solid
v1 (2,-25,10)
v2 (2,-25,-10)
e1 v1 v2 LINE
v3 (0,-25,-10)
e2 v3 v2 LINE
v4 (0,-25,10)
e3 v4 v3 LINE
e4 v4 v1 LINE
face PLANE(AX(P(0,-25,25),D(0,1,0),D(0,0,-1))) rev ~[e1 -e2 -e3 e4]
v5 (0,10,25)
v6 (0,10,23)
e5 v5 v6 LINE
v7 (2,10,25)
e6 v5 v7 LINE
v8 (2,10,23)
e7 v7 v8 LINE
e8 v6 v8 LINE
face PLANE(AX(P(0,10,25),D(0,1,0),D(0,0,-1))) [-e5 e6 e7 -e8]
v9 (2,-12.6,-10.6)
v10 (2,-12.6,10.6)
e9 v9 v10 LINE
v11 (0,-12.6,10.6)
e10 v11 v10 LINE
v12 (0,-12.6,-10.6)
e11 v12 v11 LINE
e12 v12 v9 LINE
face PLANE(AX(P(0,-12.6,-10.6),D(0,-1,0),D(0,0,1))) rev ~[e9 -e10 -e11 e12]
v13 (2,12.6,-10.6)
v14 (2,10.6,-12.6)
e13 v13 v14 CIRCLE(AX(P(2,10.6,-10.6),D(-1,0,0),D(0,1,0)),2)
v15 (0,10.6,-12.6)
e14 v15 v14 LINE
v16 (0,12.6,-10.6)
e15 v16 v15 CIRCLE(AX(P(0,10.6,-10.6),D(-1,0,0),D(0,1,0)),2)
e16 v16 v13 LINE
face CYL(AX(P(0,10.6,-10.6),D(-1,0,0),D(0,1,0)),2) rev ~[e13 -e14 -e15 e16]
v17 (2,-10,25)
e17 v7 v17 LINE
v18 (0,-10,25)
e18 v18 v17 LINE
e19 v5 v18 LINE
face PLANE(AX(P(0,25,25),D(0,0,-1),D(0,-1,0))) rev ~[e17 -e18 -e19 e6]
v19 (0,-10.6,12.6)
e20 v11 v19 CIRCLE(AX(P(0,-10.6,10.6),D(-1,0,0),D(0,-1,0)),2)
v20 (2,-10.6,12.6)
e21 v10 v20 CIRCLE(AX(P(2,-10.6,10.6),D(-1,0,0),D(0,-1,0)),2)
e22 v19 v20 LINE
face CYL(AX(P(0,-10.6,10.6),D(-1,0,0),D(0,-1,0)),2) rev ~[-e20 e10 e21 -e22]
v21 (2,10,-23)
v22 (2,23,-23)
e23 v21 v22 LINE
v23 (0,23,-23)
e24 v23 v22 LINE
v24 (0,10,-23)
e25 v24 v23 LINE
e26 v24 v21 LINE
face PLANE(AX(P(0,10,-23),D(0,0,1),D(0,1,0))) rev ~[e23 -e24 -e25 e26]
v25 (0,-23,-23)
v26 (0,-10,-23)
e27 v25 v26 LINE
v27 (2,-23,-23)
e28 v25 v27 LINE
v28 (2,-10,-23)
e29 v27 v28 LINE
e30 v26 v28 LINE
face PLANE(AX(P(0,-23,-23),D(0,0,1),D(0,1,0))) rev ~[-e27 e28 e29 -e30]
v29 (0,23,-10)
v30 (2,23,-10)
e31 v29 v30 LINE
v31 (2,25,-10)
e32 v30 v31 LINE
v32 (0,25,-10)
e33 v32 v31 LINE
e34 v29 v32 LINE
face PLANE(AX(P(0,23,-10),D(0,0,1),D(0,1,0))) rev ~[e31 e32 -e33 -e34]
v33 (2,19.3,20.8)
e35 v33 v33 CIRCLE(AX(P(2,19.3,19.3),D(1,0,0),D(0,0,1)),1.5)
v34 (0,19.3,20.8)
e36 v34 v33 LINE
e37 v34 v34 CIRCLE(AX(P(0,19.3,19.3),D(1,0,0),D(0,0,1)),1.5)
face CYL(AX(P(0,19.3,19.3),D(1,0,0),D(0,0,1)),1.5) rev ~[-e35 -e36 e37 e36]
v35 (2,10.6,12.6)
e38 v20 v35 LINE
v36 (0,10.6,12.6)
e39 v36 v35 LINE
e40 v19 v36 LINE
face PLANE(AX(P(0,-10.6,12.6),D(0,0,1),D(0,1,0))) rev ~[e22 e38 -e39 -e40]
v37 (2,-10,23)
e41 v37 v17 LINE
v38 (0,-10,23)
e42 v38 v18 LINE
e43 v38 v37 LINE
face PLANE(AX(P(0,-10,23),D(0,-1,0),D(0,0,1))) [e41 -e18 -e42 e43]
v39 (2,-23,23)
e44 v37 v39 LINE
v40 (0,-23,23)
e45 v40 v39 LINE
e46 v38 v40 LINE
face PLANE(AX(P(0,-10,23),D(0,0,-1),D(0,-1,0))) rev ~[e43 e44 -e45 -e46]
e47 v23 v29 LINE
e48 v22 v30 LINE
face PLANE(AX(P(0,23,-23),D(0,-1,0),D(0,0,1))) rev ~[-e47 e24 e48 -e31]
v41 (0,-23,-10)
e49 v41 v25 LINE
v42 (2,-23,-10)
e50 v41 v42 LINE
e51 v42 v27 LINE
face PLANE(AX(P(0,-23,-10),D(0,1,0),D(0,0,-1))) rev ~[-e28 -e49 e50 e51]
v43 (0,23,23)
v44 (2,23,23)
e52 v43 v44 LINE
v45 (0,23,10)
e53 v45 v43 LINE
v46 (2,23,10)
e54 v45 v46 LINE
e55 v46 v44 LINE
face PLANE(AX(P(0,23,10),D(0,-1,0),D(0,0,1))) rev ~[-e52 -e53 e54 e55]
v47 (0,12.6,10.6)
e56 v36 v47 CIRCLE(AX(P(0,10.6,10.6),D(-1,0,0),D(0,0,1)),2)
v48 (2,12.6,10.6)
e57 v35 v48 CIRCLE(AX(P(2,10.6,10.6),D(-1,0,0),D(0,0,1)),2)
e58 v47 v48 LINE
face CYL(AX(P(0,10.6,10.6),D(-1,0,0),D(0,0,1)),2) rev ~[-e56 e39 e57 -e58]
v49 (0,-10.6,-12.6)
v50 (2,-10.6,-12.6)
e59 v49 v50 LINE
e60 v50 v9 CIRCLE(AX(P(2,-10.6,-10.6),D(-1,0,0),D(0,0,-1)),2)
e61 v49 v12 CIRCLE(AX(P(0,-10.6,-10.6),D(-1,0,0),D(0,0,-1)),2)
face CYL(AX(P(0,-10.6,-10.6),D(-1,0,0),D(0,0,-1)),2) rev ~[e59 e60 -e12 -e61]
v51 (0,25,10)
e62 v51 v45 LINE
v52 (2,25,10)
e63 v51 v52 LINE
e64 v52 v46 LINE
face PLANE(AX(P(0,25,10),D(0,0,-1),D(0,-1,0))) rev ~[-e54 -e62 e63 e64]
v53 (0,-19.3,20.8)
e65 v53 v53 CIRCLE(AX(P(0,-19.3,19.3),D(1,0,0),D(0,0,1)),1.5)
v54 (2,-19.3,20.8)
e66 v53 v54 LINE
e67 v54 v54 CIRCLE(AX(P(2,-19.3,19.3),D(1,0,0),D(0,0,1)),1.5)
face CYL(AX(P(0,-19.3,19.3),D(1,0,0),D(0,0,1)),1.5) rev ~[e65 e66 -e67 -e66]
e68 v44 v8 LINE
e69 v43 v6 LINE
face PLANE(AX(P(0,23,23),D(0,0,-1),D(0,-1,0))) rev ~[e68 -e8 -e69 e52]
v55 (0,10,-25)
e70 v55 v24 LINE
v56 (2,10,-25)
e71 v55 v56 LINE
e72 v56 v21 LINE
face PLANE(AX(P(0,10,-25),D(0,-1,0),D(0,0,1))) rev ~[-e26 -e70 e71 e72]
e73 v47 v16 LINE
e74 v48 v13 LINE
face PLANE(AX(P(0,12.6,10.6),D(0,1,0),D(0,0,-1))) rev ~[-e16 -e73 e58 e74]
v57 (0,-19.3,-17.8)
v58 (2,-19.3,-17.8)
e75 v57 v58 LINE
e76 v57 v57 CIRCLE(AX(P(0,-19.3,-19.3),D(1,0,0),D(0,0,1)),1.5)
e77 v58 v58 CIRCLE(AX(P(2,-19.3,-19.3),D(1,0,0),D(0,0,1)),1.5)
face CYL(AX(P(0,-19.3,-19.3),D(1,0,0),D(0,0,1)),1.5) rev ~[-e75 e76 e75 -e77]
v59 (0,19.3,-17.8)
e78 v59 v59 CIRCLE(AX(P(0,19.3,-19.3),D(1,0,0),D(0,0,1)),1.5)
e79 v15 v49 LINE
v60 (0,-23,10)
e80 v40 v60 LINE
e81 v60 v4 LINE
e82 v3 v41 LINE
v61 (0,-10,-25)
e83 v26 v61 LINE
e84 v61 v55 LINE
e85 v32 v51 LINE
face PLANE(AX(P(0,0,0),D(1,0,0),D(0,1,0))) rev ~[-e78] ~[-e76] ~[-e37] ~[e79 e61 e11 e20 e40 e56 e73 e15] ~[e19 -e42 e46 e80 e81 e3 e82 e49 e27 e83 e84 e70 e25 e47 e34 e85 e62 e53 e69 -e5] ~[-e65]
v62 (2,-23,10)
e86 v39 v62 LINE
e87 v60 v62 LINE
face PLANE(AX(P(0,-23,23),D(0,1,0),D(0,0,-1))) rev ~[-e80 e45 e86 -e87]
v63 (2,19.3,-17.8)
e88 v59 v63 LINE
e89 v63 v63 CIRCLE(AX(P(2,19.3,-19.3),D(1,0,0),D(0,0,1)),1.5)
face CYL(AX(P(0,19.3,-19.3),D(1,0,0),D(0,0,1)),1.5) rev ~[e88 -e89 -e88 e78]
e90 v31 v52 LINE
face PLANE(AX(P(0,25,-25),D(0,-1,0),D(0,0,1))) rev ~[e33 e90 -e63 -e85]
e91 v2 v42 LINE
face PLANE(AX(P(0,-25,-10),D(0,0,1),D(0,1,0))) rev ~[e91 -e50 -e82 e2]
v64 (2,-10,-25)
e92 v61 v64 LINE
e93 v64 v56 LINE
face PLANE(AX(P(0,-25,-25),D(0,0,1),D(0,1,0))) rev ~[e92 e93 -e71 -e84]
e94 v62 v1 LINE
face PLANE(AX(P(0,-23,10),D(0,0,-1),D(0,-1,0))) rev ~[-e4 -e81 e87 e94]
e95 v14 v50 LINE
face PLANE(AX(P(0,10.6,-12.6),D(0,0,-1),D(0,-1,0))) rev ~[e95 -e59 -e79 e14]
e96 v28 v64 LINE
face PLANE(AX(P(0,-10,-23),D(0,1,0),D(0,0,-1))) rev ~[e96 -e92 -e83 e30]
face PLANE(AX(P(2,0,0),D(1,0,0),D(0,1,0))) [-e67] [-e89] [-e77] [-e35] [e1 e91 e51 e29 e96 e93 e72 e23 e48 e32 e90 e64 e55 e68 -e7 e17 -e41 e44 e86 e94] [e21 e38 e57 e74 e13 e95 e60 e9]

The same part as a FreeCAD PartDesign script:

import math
import FreeCAD as App
import Part
import Sketcher
Q = App.Units.Quantity

doc = App.newDocument("Part")
params = doc.addObject("Spreadsheet::Sheet", "Params")
for row, (alias, value) in enumerate([
    ("sketch1_width", "50 mm"),
    ("pad1_length", "2 mm"),
    ("sketch2_diameter", "3 mm"),
    ("hole_diameter", "3 mm"),
    ("sketch3_diameter", "3 mm"),
    ("hole2_diameter", "3 mm"),
    ("sketch4_diameter", "3 mm"),
    ("hole3_diameter", "3 mm"),
    ("sketch5_diameter", "3 mm"),
    ("hole4_diameter", "3 mm"),
    ("sketch6_width", "2 mm"),
    ("pocket1_length", "2 mm"),
    ("sketch7_radius", "2 mm"),
    ("sketch7_width", "21.2 mm"),
    ("pocket2_length", "2 mm"),
], start=1):
    params.set(f"A{row}", alias)
    params.set(f"B{row}", "=" + value)
    params.setAlias(f"B{row}", alias)

body = doc.addObject("PartDesign::Body", "Body")

# Sketch on YZ plane
sketch1 = body.newObject("Sketcher::SketchObject", "Sketch")
sketch1.AttachmentSupport = (doc.getObject("YZ_Plane"), [""])
sketch1.MapMode = "FlatFace"
sketch1.addGeometry(Part.LineSegment(App.Vector(-25, 25, 0), App.Vector(-25, -25, 0)), False)
sketch1.addGeometry(Part.LineSegment(App.Vector(-25, -25, 0), App.Vector(25, -25, 0)), False)
sketch1.addGeometry(Part.LineSegment(App.Vector(25, -25, 0), App.Vector(25, 25, 0)), False)
sketch1.addGeometry(Part.LineSegment(App.Vector(25, 25, 0), App.Vector(-25, 25, 0)), False)
sketch1.addConstraint(Sketcher.Constraint("Coincident", 0, 2, 1, 1))
sketch1.addConstraint(Sketcher.Constraint("Coincident", 1, 2, 2, 1))
sketch1.addConstraint(Sketcher.Constraint("Coincident", 2, 2, 3, 1))
sketch1.addConstraint(Sketcher.Constraint("Coincident", 3, 2, 0, 1))
sketch1.addConstraint(Sketcher.Constraint("Vertical", 0))
sketch1.addConstraint(Sketcher.Constraint("Horizontal", 1))
sketch1.addConstraint(Sketcher.Constraint("Vertical", 2))
sketch1.addConstraint(Sketcher.Constraint("Horizontal", 3))
sketch1.addConstraint(Sketcher.Constraint("Symmetric", 0, 2, 2, 2, -1, 1))
sketch1.addConstraint(Sketcher.Constraint("Equal", 3, 0))
sketch1.addConstraint(Sketcher.Constraint("DistanceX", 1, 1, 1, 2, Q("50 mm")))
sketch1.setExpression("Constraints[10]", "Params.sketch1_width")
pad1 = body.newObject("PartDesign::Pad", "Pad")
pad1.Profile = sketch1
pad1.setExpression("Length", "Params.pad1_length")

# Sketch on YZ plane
sketch2 = body.newObject("Sketcher::SketchObject", "Sketch001")
sketch2.AttachmentSupport = (doc.getObject("YZ_Plane"), [""])
sketch2.MapMode = "FlatFace"
sketch2.addGeometry(Part.Circle(App.Vector(19.3, -19.3, 0), App.Vector(0, 0, 1), 1.5), False)
sketch2.addConstraint(Sketcher.Constraint("Diameter", 0, Q("3 mm")))
sketch2.addConstraint(Sketcher.Constraint("DistanceX", -1, 1, 0, 3, Q("19.3 mm")))
sketch2.addConstraint(Sketcher.Constraint("DistanceY", 0, 3, -1, 1, Q("19.3 mm")))
sketch2.setExpression("Constraints[0]", "Params.sketch2_diameter")
doc.recompute()
hole = body.newObject("PartDesign::Hole", "Hole")
hole.Profile = sketch2
hole.ThreadType = "None"
hole.setExpression("Diameter", "Params.hole_diameter")
hole.DepthType = "ThroughAll"
hole.Reversed = True

# Sketch on YZ plane
sketch3 = body.newObject("Sketcher::SketchObject", "Sketch002")
sketch3.AttachmentSupport = (doc.getObject("YZ_Plane"), [""])
sketch3.MapMode = "FlatFace"
sketch3.addGeometry(Part.Circle(App.Vector(19.3, 19.3, 0), App.Vector(0, 0, 1), 1.5), False)
sketch3.addConstraint(Sketcher.Constraint("Diameter", 0, Q("3 mm")))
sketch3.addConstraint(Sketcher.Constraint("DistanceX", -1, 1, 0, 3, Q("19.3 mm")))
sketch3.addConstraint(Sketcher.Constraint("DistanceY", -1, 1, 0, 3, Q("19.3 mm")))
sketch3.setExpression("Constraints[0]", "Params.sketch3_diameter")
doc.recompute()
hole2 = body.newObject("PartDesign::Hole", "Hole001")
hole2.Profile = sketch3
hole2.ThreadType = "None"
hole2.setExpression("Diameter", "Params.hole2_diameter")
hole2.DepthType = "ThroughAll"
hole2.Reversed = True

# Sketch on YZ plane
sketch4 = body.newObject("Sketcher::SketchObject", "Sketch003")
sketch4.AttachmentSupport = (doc.getObject("YZ_Plane"), [""])
sketch4.MapMode = "FlatFace"
sketch4.addGeometry(Part.Circle(App.Vector(-19.3, -19.3, 0), App.Vector(0, 0, 1), 1.5), False)
sketch4.addConstraint(Sketcher.Constraint("Diameter", 0, Q("3 mm")))
sketch4.addConstraint(Sketcher.Constraint("DistanceX", 0, 3, -1, 1, Q("19.3 mm")))
sketch4.addConstraint(Sketcher.Constraint("DistanceY", 0, 3, -1, 1, Q("19.3 mm")))
sketch4.setExpression("Constraints[0]", "Params.sketch4_diameter")
doc.recompute()
hole3 = body.newObject("PartDesign::Hole", "Hole002")
hole3.Profile = sketch4
hole3.ThreadType = "None"
hole3.setExpression("Diameter", "Params.hole3_diameter")
hole3.DepthType = "ThroughAll"
hole3.Reversed = True

# Sketch on YZ plane
sketch5 = body.newObject("Sketcher::SketchObject", "Sketch004")
sketch5.AttachmentSupport = (doc.getObject("YZ_Plane"), [""])
sketch5.MapMode = "FlatFace"
sketch5.addGeometry(Part.Circle(App.Vector(-19.3, 19.3, 0), App.Vector(0, 0, 1), 1.5), False)
sketch5.addConstraint(Sketcher.Constraint("Diameter", 0, Q("3 mm")))
sketch5.addConstraint(Sketcher.Constraint("DistanceX", 0, 3, -1, 1, Q("19.3 mm")))
sketch5.addConstraint(Sketcher.Constraint("DistanceY", -1, 1, 0, 3, Q("19.3 mm")))
sketch5.setExpression("Constraints[0]", "Params.sketch5_diameter")
doc.recompute()
hole4 = body.newObject("PartDesign::Hole", "Hole003")
hole4.Profile = sketch5
hole4.ThreadType = "None"
hole4.setExpression("Diameter", "Params.hole4_diameter")
hole4.DepthType = "ThroughAll"
hole4.Reversed = True

# Sketch on YZ plane
sketch6 = body.newObject("Sketcher::SketchObject", "Sketch005")
sketch6.AttachmentSupport = (doc.getObject("YZ_Plane"), [""])
sketch6.MapMode = "FlatFace"
sketch6.addGeometry(Part.LineSegment(App.Vector(-10, 23, 0), App.Vector(-23, 23, 0)), False)
sketch6.addGeometry(Part.LineSegment(App.Vector(-23, 23, 0), App.Vector(-23, 10, 0)), False)
sketch6.addGeometry(Part.LineSegment(App.Vector(-23, 10, 0), App.Vector(-25, 10, 0)), False)
sketch6.addGeometry(Part.LineSegment(App.Vector(-25, 10, 0), App.Vector(-25, 25, 0)), False)
sketch6.addGeometry(Part.LineSegment(App.Vector(-25, 25, 0), App.Vector(-10, 25, 0)), False)
sketch6.addGeometry(Part.LineSegment(App.Vector(-10, 25, 0), App.Vector(-10, 23, 0)), False)
sketch6.addGeometry(Part.LineSegment(App.Vector(-25, -10, 0), App.Vector(-23, -10, 0)), False)
sketch6.addGeometry(Part.LineSegment(App.Vector(-23, -10, 0), App.Vector(-23, -23, 0)), False)
sketch6.addGeometry(Part.LineSegment(App.Vector(-23, -23, 0), App.Vector(-10, -23, 0)), False)
sketch6.addGeometry(Part.LineSegment(App.Vector(-10, -23, 0), App.Vector(-10, -25, 0)), False)
sketch6.addGeometry(Part.LineSegment(App.Vector(-10, -25, 0), App.Vector(-25, -25, 0)), False)
sketch6.addGeometry(Part.LineSegment(App.Vector(-25, -25, 0), App.Vector(-25, -10, 0)), False)
sketch6.addGeometry(Part.LineSegment(App.Vector(23, 23, 0), App.Vector(10, 23, 0)), False)
sketch6.addGeometry(Part.LineSegment(App.Vector(10, 23, 0), App.Vector(10, 25, 0)), False)
sketch6.addGeometry(Part.LineSegment(App.Vector(10, 25, 0), App.Vector(25, 25, 0)), False)
sketch6.addGeometry(Part.LineSegment(App.Vector(25, 25, 0), App.Vector(25, 10, 0)), False)
sketch6.addGeometry(Part.LineSegment(App.Vector(25, 10, 0), App.Vector(23, 10, 0)), False)
sketch6.addGeometry(Part.LineSegment(App.Vector(23, 10, 0), App.Vector(23, 23, 0)), False)
sketch6.addGeometry(Part.LineSegment(App.Vector(10, -25, 0), App.Vector(10, -23, 0)), False)
sketch6.addGeometry(Part.LineSegment(App.Vector(10, -23, 0), App.Vector(23, -23, 0)), False)
sketch6.addGeometry(Part.LineSegment(App.Vector(23, -23, 0), App.Vector(23, -10, 0)), False)
sketch6.addGeometry(Part.LineSegment(App.Vector(23, -10, 0), App.Vector(25, -10, 0)), False)
sketch6.addGeometry(Part.LineSegment(App.Vector(25, -10, 0), App.Vector(25, -25, 0)), False)
sketch6.addGeometry(Part.LineSegment(App.Vector(25, -25, 0), App.Vector(10, -25, 0)), False)
sketch6.addConstraint(Sketcher.Constraint("Coincident", 0, 2, 1, 1))
sketch6.addConstraint(Sketcher.Constraint("Coincident", 1, 2, 2, 1))
sketch6.addConstraint(Sketcher.Constraint("Coincident", 2, 2, 3, 1))
sketch6.addConstraint(Sketcher.Constraint("Coincident", 3, 2, 4, 1))
sketch6.addConstraint(Sketcher.Constraint("Coincident", 4, 2, 5, 1))
sketch6.addConstraint(Sketcher.Constraint("Coincident", 5, 2, 0, 1))
sketch6.addConstraint(Sketcher.Constraint("Coincident", 6, 2, 7, 1))
sketch6.addConstraint(Sketcher.Constraint("Coincident", 7, 2, 8, 1))
sketch6.addConstraint(Sketcher.Constraint("Coincident", 8, 2, 9, 1))
sketch6.addConstraint(Sketcher.Constraint("Coincident", 9, 2, 10, 1))
sketch6.addConstraint(Sketcher.Constraint("Coincident", 10, 2, 11, 1))
sketch6.addConstraint(Sketcher.Constraint("Coincident", 11, 2, 6, 1))
sketch6.addConstraint(Sketcher.Constraint("Coincident", 12, 2, 13, 1))
sketch6.addConstraint(Sketcher.Constraint("Coincident", 13, 2, 14, 1))
sketch6.addConstraint(Sketcher.Constraint("Coincident", 14, 2, 15, 1))
sketch6.addConstraint(Sketcher.Constraint("Coincident", 15, 2, 16, 1))
sketch6.addConstraint(Sketcher.Constraint("Coincident", 16, 2, 17, 1))
sketch6.addConstraint(Sketcher.Constraint("Coincident", 17, 2, 12, 1))
sketch6.addConstraint(Sketcher.Constraint("Coincident", 18, 2, 19, 1))
sketch6.addConstraint(Sketcher.Constraint("Coincident", 19, 2, 20, 1))
sketch6.addConstraint(Sketcher.Constraint("Coincident", 20, 2, 21, 1))
sketch6.addConstraint(Sketcher.Constraint("Coincident", 21, 2, 22, 1))
sketch6.addConstraint(Sketcher.Constraint("Coincident", 22, 2, 23, 1))
sketch6.addConstraint(Sketcher.Constraint("Coincident", 23, 2, 18, 1))
sketch6.addConstraint(Sketcher.Constraint("Horizontal", 0))
sketch6.addConstraint(Sketcher.Constraint("Vertical", 1))
sketch6.addConstraint(Sketcher.Constraint("Horizontal", 2))
sketch6.addConstraint(Sketcher.Constraint("Vertical", 3))
sketch6.addConstraint(Sketcher.Constraint("Horizontal", 4))
sketch6.addConstraint(Sketcher.Constraint("Vertical", 5))
sketch6.addConstraint(Sketcher.Constraint("Horizontal", 6))
sketch6.addConstraint(Sketcher.Constraint("Vertical", 7))
sketch6.addConstraint(Sketcher.Constraint("Horizontal", 8))
sketch6.addConstraint(Sketcher.Constraint("Vertical", 9))
sketch6.addConstraint(Sketcher.Constraint("Horizontal", 10))
sketch6.addConstraint(Sketcher.Constraint("Vertical", 11))
sketch6.addConstraint(Sketcher.Constraint("Horizontal", 12))
sketch6.addConstraint(Sketcher.Constraint("Vertical", 13))
sketch6.addConstraint(Sketcher.Constraint("Horizontal", 14))
sketch6.addConstraint(Sketcher.Constraint("Vertical", 15))
sketch6.addConstraint(Sketcher.Constraint("Horizontal", 16))
sketch6.addConstraint(Sketcher.Constraint("Vertical", 17))
sketch6.addConstraint(Sketcher.Constraint("Vertical", 18))
sketch6.addConstraint(Sketcher.Constraint("Horizontal", 19))
sketch6.addConstraint(Sketcher.Constraint("Vertical", 20))
sketch6.addConstraint(Sketcher.Constraint("Horizontal", 21))
sketch6.addConstraint(Sketcher.Constraint("Vertical", 22))
sketch6.addConstraint(Sketcher.Constraint("Horizontal", 23))
sketch6.addConstraint(Sketcher.Constraint("Symmetric", 8, 2, 12, 2, -1, 1))
sketch6.addConstraint(Sketcher.Constraint("Symmetric", 10, 2, 14, 2, -1, 1))
sketch6.addConstraint(Sketcher.Constraint("Symmetric", 6, 2, 16, 2, -1, 1))
sketch6.addConstraint(Sketcher.Constraint("Symmetric", 5, 2, 18, 2, -1, 1))
sketch6.addConstraint(Sketcher.Constraint("Symmetric", 1, 2, 20, 2, -1, 1))
sketch6.addConstraint(Sketcher.Constraint("Symmetric", 3, 2, 22, 2, -1, 1))
sketch6.addConstraint(Sketcher.Constraint("Symmetric", 5, 2, 12, 2, -2))
sketch6.addConstraint(Sketcher.Constraint("Symmetric", 3, 2, 14, 2, -2))
sketch6.addConstraint(Sketcher.Constraint("Symmetric", 1, 2, 16, 2, -2))
sketch6.addConstraint(Sketcher.Constraint("Equal", 19, 1))
sketch6.addConstraint(Sketcher.Constraint("Equal", 23, 3))
sketch6.addConstraint(Sketcher.Constraint("DistanceY", 6, 2, 1, 2, Q("20 mm")))
sketch6.addConstraint(Sketcher.Constraint("DistanceY", 7, 2, 0, 2, Q("46 mm")))
sketch6.addConstraint(Sketcher.Constraint("DistanceX", 5, 2, 12, 2, Q("20 mm")))
sketch6.addConstraint(Sketcher.Constraint("DistanceX", 2, 2, 2, 1, Q("2 mm")))
sketch6.setExpression("Constraints[62]", "Params.sketch6_width")
pocket1 = body.newObject("PartDesign::Pocket", "Pocket")
pocket1.Profile = sketch6
pocket1.setExpression("Length", "Params.pocket1_length")
pocket1.Reversed = True

# Sketch on YZ plane
sketch7 = body.newObject("Sketcher::SketchObject", "Sketch006")
sketch7.AttachmentSupport = (doc.getObject("YZ_Plane"), [""])
sketch7.MapMode = "FlatFace"
sketch7.addGeometry(Part.ArcOfCircle(Part.Circle(App.Vector(10.6, 10.6, 0), App.Vector(0, 0, 1), 2), math.radians(0), math.radians(90)), False)
sketch7.addGeometry(Part.LineSegment(App.Vector(12.6, 10.6, 0), App.Vector(12.6, -10.6, 0)), False)
sketch7.addGeometry(Part.ArcOfCircle(Part.Circle(App.Vector(10.6, -10.6, 0), App.Vector(0, 0, 1), 2), math.radians(-90), math.radians(0)), False)
sketch7.addGeometry(Part.LineSegment(App.Vector(10.6, -12.6, 0), App.Vector(-10.6, -12.6, 0)), False)
sketch7.addGeometry(Part.ArcOfCircle(Part.Circle(App.Vector(-10.6, -10.6, 0), App.Vector(0, 0, 1), 2), math.radians(180), math.radians(270)), False)
sketch7.addGeometry(Part.LineSegment(App.Vector(-12.6, -10.6, 0), App.Vector(-12.6, 10.6, 0)), False)
sketch7.addGeometry(Part.ArcOfCircle(Part.Circle(App.Vector(-10.6, 10.6, 0), App.Vector(0, 0, 1), 2), math.radians(90), math.radians(180)), False)
sketch7.addGeometry(Part.LineSegment(App.Vector(-10.6, 12.6, 0), App.Vector(10.6, 12.6, 0)), False)
sketch7.addConstraint(Sketcher.Constraint("Tangent", 0, 1, 1, 1))
sketch7.addConstraint(Sketcher.Constraint("Tangent", 1, 2, 2, 2))
sketch7.addConstraint(Sketcher.Constraint("Tangent", 2, 1, 3, 1))
sketch7.addConstraint(Sketcher.Constraint("Tangent", 3, 2, 4, 2))
sketch7.addConstraint(Sketcher.Constraint("Tangent", 4, 1, 5, 1))
sketch7.addConstraint(Sketcher.Constraint("Tangent", 5, 2, 6, 2))
sketch7.addConstraint(Sketcher.Constraint("Tangent", 6, 1, 7, 1))
sketch7.addConstraint(Sketcher.Constraint("Tangent", 7, 2, 0, 2))
sketch7.addConstraint(Sketcher.Constraint("Vertical", 1))
sketch7.addConstraint(Sketcher.Constraint("Horizontal", 3))
sketch7.addConstraint(Sketcher.Constraint("Vertical", 5))
sketch7.addConstraint(Sketcher.Constraint("Horizontal", 7))
sketch7.addConstraint(Sketcher.Constraint("Equal", 0, 2))
sketch7.addConstraint(Sketcher.Constraint("Equal", 2, 4))
sketch7.addConstraint(Sketcher.Constraint("Equal", 4, 6))
sketch7.addConstraint(Sketcher.Constraint("Symmetric", 0, 3, 4, 3, -1, 1))
sketch7.addConstraint(Sketcher.Constraint("Equal", 7, 1))
sketch7.addConstraint(Sketcher.Constraint("Radius", 0, Q("2 mm")))
sketch7.addConstraint(Sketcher.Constraint("DistanceX", 3, 2, 3, 1, Q("21.2 mm")))
sketch7.setExpression("Constraints[17]", "Params.sketch7_radius")
sketch7.setExpression("Constraints[18]", "Params.sketch7_width")
pocket2 = body.newObject("PartDesign::Pocket", "Pocket001")
pocket2.Profile = sketch7
pocket2.setExpression("Length", "Params.pocket2_length")
pocket2.Reversed = True

doc.recompute()
